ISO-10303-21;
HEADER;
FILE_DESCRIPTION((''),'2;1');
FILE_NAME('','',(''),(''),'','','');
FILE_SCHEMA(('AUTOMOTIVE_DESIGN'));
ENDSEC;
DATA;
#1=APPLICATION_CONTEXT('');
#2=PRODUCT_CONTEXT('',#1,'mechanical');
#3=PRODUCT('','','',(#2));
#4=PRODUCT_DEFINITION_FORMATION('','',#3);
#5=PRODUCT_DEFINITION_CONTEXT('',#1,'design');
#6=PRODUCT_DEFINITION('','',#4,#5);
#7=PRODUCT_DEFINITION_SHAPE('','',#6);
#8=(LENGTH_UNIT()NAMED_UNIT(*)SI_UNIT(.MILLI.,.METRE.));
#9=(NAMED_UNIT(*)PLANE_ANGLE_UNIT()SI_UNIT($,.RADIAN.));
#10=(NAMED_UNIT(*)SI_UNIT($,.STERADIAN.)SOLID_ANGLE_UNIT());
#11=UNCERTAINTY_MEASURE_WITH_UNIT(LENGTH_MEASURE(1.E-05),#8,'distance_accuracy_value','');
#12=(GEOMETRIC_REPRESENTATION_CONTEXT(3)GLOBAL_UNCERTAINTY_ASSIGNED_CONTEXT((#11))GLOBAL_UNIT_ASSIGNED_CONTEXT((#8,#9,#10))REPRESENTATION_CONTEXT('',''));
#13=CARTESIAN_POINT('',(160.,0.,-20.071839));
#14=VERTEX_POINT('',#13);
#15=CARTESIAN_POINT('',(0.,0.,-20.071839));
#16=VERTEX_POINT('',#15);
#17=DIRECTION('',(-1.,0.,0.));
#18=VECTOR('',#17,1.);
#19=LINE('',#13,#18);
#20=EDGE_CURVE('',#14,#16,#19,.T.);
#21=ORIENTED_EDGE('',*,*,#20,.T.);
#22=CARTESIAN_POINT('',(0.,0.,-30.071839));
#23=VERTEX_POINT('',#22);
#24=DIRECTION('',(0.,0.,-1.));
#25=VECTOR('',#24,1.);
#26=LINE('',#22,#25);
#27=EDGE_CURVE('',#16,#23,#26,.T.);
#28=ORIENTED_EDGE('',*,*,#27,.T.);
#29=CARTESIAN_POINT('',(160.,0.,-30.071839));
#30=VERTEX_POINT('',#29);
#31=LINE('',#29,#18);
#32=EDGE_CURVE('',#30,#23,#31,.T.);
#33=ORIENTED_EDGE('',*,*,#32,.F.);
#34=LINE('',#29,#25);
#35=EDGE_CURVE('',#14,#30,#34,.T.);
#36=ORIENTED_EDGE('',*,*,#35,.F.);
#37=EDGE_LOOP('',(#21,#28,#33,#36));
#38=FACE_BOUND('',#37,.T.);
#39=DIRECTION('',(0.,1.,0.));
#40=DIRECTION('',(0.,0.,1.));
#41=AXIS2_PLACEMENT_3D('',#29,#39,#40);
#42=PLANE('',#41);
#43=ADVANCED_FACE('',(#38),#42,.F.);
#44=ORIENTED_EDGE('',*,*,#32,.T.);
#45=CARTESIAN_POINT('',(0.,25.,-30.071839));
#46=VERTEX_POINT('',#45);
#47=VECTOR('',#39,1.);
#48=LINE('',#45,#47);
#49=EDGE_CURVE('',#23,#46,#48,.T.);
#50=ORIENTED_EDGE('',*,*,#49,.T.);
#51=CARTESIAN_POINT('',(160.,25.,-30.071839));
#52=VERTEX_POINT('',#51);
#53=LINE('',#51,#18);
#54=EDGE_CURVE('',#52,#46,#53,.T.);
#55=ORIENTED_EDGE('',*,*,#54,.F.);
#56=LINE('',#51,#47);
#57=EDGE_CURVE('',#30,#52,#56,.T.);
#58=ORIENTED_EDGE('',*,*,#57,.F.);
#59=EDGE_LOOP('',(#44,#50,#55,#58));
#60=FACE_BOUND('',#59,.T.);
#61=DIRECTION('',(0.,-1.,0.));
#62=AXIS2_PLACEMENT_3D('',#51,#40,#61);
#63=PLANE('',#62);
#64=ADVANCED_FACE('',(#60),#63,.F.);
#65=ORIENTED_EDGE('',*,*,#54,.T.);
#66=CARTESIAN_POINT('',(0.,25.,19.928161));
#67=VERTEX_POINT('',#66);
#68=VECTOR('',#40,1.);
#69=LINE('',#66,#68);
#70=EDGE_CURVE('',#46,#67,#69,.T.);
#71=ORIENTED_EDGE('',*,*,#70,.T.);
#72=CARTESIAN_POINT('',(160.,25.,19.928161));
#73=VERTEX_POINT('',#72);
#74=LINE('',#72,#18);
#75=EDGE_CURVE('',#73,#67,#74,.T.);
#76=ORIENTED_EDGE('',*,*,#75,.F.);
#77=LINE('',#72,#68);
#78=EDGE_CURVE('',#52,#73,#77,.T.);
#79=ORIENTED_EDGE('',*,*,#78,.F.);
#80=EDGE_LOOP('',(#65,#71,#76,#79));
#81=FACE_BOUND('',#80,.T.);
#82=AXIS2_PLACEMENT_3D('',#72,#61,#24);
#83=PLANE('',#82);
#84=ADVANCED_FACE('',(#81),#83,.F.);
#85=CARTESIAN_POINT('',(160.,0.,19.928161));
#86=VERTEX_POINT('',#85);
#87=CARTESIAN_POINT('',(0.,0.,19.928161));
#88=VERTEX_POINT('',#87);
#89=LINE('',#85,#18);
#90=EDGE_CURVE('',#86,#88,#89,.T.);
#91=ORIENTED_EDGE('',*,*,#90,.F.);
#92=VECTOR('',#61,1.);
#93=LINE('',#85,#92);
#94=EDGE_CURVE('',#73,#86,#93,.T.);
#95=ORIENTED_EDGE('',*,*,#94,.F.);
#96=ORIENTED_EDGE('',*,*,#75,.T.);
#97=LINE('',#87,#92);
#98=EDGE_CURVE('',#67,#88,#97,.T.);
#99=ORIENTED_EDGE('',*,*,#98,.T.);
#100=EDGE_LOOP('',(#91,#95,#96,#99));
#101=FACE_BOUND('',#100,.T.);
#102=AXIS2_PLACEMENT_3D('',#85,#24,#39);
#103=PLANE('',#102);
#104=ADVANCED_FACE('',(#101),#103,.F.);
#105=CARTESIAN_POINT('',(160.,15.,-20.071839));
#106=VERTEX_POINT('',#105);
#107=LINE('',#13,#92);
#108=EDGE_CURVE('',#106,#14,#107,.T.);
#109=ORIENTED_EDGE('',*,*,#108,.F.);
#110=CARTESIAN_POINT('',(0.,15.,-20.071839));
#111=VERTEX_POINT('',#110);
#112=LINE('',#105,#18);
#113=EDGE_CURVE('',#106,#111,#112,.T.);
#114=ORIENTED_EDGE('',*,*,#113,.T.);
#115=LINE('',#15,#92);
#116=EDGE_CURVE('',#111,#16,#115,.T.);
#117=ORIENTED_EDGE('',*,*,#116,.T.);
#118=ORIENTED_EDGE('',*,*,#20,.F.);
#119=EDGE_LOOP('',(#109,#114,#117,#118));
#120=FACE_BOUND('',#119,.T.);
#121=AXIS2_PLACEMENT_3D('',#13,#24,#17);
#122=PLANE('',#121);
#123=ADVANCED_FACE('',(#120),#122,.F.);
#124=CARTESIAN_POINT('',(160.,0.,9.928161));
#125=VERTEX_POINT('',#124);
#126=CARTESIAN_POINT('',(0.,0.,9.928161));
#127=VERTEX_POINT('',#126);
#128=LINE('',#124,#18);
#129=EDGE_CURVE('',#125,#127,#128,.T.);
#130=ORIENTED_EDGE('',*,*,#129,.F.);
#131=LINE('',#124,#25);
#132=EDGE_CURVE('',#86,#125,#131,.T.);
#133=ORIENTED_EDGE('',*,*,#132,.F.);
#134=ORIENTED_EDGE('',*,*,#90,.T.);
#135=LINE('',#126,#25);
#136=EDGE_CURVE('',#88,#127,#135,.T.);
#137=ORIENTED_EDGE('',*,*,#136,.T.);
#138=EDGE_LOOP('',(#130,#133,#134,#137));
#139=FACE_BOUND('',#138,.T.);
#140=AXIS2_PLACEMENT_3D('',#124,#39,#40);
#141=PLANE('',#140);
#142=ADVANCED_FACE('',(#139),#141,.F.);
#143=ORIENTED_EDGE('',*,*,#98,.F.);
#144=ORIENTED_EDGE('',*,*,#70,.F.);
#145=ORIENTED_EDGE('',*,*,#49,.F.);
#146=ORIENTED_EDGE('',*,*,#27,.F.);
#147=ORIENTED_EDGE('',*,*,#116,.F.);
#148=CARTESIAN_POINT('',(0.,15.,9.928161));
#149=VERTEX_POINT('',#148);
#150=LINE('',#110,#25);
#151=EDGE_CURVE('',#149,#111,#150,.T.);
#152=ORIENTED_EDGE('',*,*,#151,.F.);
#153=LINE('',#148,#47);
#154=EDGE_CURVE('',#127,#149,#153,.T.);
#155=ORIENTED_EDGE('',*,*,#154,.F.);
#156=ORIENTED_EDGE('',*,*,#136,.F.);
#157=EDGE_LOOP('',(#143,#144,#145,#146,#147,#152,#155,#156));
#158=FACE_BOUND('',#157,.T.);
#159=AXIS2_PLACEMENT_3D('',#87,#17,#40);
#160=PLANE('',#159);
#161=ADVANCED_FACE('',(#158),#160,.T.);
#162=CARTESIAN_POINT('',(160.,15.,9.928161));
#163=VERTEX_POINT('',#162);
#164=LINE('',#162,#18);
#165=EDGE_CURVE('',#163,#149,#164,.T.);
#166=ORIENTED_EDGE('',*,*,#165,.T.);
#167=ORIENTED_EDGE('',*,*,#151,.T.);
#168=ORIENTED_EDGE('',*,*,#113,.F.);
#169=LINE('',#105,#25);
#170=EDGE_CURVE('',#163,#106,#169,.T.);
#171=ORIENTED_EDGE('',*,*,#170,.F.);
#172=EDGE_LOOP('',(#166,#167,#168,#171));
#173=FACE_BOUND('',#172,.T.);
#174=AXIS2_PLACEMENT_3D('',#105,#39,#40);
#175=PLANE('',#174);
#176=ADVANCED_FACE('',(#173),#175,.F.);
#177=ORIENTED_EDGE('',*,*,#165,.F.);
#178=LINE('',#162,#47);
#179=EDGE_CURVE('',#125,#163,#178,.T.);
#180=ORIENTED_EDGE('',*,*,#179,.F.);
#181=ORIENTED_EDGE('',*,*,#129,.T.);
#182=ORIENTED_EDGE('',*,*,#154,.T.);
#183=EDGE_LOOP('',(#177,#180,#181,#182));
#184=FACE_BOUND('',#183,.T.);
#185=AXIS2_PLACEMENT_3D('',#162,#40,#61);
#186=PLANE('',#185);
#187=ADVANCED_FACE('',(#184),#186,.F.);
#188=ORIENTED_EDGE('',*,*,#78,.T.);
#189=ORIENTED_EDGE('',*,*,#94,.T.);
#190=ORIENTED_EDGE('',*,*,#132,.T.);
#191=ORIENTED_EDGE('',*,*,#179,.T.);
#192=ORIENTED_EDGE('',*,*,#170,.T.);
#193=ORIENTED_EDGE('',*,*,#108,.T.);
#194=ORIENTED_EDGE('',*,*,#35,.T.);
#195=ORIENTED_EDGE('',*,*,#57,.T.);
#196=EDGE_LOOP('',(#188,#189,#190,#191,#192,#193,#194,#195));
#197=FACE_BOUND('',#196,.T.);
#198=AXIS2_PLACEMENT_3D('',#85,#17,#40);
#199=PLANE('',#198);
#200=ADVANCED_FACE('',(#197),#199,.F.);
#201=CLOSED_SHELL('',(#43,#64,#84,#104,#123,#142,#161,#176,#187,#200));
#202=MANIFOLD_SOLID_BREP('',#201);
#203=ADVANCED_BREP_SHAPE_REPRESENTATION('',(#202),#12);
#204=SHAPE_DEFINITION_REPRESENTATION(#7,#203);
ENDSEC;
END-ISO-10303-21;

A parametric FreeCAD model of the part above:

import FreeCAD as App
import Part
import Sketcher
Q = App.Units.Quantity


def add_polygon(sketch, points):
    """Adds a closed chain of lines whose ends are joined by coincident constraints."""
    first, n = sketch.GeometryCount, len(points)
    for a, b in zip(points, points[1:] + points[:1]):
        sketch.addGeometry(Part.LineSegment(App.Vector(*a, 0), App.Vector(*b, 0)), False)
    for i in range(n):
        sketch.addConstraint(Sketcher.Constraint("Coincident", first + i, 2, first + (i + 1) % n, 1))

doc = App.newDocument("Part")
body = doc.addObject("PartDesign::Body", "Body")

# Sketch on YZ plane
sketch1 = doc.addObject("Sketcher::SketchObject", "Sketch")
body.addObject(sketch1)
sketch1.AttachmentSupport = (doc.YZ_Plane, [""])
sketch1.MapMode = "FlatFace"
add_polygon(sketch1, [(25, 20), (0, 20), (0, 10), (15, 10), (15, -20), (0, -20), (0, -30), (25, -30)])  # lines 0-7
sketch1.addConstraint([
    Sketcher.Constraint("Horizontal", 0),
    Sketcher.Constraint("Vertical", 1),
    Sketcher.Constraint("Horizontal", 2),
    Sketcher.Constraint("Vertical", 3),
    Sketcher.Constraint("Horizontal", 4),
    Sketcher.Constraint("Vertical", 5),
    Sketcher.Constraint("Horizontal", 6),
    Sketcher.Constraint("Vertical", 7),
    Sketcher.Constraint("PointOnObject", 0, 2, -2),
    Sketcher.Constraint("PointOnObject", 4, 2, -2),
    Sketcher.Constraint("Equal", 1, 5),
    Sketcher.Constraint("DistanceX", 0, 2, 0, 1, Q("25 mm")),
    Sketcher.Constraint("DistanceX", 2, 1, 2, 2, Q("15 mm")),
    Sketcher.Constraint("DistanceY", 1, 2, 1, 1, Q("10 mm")),
    Sketcher.Constraint("DistanceY", 3, 2, 3, 1, Q("30 mm")),
    Sketcher.Constraint("DistanceY", -1, 1, 0, 2, Q("19.928161 mm")),
])
pad1 = doc.addObject("PartDesign::Pad", "Pad")
body.addObject(pad1)
pad1.Profile = sketch1
pad1.Length = 160

doc.recompute()
